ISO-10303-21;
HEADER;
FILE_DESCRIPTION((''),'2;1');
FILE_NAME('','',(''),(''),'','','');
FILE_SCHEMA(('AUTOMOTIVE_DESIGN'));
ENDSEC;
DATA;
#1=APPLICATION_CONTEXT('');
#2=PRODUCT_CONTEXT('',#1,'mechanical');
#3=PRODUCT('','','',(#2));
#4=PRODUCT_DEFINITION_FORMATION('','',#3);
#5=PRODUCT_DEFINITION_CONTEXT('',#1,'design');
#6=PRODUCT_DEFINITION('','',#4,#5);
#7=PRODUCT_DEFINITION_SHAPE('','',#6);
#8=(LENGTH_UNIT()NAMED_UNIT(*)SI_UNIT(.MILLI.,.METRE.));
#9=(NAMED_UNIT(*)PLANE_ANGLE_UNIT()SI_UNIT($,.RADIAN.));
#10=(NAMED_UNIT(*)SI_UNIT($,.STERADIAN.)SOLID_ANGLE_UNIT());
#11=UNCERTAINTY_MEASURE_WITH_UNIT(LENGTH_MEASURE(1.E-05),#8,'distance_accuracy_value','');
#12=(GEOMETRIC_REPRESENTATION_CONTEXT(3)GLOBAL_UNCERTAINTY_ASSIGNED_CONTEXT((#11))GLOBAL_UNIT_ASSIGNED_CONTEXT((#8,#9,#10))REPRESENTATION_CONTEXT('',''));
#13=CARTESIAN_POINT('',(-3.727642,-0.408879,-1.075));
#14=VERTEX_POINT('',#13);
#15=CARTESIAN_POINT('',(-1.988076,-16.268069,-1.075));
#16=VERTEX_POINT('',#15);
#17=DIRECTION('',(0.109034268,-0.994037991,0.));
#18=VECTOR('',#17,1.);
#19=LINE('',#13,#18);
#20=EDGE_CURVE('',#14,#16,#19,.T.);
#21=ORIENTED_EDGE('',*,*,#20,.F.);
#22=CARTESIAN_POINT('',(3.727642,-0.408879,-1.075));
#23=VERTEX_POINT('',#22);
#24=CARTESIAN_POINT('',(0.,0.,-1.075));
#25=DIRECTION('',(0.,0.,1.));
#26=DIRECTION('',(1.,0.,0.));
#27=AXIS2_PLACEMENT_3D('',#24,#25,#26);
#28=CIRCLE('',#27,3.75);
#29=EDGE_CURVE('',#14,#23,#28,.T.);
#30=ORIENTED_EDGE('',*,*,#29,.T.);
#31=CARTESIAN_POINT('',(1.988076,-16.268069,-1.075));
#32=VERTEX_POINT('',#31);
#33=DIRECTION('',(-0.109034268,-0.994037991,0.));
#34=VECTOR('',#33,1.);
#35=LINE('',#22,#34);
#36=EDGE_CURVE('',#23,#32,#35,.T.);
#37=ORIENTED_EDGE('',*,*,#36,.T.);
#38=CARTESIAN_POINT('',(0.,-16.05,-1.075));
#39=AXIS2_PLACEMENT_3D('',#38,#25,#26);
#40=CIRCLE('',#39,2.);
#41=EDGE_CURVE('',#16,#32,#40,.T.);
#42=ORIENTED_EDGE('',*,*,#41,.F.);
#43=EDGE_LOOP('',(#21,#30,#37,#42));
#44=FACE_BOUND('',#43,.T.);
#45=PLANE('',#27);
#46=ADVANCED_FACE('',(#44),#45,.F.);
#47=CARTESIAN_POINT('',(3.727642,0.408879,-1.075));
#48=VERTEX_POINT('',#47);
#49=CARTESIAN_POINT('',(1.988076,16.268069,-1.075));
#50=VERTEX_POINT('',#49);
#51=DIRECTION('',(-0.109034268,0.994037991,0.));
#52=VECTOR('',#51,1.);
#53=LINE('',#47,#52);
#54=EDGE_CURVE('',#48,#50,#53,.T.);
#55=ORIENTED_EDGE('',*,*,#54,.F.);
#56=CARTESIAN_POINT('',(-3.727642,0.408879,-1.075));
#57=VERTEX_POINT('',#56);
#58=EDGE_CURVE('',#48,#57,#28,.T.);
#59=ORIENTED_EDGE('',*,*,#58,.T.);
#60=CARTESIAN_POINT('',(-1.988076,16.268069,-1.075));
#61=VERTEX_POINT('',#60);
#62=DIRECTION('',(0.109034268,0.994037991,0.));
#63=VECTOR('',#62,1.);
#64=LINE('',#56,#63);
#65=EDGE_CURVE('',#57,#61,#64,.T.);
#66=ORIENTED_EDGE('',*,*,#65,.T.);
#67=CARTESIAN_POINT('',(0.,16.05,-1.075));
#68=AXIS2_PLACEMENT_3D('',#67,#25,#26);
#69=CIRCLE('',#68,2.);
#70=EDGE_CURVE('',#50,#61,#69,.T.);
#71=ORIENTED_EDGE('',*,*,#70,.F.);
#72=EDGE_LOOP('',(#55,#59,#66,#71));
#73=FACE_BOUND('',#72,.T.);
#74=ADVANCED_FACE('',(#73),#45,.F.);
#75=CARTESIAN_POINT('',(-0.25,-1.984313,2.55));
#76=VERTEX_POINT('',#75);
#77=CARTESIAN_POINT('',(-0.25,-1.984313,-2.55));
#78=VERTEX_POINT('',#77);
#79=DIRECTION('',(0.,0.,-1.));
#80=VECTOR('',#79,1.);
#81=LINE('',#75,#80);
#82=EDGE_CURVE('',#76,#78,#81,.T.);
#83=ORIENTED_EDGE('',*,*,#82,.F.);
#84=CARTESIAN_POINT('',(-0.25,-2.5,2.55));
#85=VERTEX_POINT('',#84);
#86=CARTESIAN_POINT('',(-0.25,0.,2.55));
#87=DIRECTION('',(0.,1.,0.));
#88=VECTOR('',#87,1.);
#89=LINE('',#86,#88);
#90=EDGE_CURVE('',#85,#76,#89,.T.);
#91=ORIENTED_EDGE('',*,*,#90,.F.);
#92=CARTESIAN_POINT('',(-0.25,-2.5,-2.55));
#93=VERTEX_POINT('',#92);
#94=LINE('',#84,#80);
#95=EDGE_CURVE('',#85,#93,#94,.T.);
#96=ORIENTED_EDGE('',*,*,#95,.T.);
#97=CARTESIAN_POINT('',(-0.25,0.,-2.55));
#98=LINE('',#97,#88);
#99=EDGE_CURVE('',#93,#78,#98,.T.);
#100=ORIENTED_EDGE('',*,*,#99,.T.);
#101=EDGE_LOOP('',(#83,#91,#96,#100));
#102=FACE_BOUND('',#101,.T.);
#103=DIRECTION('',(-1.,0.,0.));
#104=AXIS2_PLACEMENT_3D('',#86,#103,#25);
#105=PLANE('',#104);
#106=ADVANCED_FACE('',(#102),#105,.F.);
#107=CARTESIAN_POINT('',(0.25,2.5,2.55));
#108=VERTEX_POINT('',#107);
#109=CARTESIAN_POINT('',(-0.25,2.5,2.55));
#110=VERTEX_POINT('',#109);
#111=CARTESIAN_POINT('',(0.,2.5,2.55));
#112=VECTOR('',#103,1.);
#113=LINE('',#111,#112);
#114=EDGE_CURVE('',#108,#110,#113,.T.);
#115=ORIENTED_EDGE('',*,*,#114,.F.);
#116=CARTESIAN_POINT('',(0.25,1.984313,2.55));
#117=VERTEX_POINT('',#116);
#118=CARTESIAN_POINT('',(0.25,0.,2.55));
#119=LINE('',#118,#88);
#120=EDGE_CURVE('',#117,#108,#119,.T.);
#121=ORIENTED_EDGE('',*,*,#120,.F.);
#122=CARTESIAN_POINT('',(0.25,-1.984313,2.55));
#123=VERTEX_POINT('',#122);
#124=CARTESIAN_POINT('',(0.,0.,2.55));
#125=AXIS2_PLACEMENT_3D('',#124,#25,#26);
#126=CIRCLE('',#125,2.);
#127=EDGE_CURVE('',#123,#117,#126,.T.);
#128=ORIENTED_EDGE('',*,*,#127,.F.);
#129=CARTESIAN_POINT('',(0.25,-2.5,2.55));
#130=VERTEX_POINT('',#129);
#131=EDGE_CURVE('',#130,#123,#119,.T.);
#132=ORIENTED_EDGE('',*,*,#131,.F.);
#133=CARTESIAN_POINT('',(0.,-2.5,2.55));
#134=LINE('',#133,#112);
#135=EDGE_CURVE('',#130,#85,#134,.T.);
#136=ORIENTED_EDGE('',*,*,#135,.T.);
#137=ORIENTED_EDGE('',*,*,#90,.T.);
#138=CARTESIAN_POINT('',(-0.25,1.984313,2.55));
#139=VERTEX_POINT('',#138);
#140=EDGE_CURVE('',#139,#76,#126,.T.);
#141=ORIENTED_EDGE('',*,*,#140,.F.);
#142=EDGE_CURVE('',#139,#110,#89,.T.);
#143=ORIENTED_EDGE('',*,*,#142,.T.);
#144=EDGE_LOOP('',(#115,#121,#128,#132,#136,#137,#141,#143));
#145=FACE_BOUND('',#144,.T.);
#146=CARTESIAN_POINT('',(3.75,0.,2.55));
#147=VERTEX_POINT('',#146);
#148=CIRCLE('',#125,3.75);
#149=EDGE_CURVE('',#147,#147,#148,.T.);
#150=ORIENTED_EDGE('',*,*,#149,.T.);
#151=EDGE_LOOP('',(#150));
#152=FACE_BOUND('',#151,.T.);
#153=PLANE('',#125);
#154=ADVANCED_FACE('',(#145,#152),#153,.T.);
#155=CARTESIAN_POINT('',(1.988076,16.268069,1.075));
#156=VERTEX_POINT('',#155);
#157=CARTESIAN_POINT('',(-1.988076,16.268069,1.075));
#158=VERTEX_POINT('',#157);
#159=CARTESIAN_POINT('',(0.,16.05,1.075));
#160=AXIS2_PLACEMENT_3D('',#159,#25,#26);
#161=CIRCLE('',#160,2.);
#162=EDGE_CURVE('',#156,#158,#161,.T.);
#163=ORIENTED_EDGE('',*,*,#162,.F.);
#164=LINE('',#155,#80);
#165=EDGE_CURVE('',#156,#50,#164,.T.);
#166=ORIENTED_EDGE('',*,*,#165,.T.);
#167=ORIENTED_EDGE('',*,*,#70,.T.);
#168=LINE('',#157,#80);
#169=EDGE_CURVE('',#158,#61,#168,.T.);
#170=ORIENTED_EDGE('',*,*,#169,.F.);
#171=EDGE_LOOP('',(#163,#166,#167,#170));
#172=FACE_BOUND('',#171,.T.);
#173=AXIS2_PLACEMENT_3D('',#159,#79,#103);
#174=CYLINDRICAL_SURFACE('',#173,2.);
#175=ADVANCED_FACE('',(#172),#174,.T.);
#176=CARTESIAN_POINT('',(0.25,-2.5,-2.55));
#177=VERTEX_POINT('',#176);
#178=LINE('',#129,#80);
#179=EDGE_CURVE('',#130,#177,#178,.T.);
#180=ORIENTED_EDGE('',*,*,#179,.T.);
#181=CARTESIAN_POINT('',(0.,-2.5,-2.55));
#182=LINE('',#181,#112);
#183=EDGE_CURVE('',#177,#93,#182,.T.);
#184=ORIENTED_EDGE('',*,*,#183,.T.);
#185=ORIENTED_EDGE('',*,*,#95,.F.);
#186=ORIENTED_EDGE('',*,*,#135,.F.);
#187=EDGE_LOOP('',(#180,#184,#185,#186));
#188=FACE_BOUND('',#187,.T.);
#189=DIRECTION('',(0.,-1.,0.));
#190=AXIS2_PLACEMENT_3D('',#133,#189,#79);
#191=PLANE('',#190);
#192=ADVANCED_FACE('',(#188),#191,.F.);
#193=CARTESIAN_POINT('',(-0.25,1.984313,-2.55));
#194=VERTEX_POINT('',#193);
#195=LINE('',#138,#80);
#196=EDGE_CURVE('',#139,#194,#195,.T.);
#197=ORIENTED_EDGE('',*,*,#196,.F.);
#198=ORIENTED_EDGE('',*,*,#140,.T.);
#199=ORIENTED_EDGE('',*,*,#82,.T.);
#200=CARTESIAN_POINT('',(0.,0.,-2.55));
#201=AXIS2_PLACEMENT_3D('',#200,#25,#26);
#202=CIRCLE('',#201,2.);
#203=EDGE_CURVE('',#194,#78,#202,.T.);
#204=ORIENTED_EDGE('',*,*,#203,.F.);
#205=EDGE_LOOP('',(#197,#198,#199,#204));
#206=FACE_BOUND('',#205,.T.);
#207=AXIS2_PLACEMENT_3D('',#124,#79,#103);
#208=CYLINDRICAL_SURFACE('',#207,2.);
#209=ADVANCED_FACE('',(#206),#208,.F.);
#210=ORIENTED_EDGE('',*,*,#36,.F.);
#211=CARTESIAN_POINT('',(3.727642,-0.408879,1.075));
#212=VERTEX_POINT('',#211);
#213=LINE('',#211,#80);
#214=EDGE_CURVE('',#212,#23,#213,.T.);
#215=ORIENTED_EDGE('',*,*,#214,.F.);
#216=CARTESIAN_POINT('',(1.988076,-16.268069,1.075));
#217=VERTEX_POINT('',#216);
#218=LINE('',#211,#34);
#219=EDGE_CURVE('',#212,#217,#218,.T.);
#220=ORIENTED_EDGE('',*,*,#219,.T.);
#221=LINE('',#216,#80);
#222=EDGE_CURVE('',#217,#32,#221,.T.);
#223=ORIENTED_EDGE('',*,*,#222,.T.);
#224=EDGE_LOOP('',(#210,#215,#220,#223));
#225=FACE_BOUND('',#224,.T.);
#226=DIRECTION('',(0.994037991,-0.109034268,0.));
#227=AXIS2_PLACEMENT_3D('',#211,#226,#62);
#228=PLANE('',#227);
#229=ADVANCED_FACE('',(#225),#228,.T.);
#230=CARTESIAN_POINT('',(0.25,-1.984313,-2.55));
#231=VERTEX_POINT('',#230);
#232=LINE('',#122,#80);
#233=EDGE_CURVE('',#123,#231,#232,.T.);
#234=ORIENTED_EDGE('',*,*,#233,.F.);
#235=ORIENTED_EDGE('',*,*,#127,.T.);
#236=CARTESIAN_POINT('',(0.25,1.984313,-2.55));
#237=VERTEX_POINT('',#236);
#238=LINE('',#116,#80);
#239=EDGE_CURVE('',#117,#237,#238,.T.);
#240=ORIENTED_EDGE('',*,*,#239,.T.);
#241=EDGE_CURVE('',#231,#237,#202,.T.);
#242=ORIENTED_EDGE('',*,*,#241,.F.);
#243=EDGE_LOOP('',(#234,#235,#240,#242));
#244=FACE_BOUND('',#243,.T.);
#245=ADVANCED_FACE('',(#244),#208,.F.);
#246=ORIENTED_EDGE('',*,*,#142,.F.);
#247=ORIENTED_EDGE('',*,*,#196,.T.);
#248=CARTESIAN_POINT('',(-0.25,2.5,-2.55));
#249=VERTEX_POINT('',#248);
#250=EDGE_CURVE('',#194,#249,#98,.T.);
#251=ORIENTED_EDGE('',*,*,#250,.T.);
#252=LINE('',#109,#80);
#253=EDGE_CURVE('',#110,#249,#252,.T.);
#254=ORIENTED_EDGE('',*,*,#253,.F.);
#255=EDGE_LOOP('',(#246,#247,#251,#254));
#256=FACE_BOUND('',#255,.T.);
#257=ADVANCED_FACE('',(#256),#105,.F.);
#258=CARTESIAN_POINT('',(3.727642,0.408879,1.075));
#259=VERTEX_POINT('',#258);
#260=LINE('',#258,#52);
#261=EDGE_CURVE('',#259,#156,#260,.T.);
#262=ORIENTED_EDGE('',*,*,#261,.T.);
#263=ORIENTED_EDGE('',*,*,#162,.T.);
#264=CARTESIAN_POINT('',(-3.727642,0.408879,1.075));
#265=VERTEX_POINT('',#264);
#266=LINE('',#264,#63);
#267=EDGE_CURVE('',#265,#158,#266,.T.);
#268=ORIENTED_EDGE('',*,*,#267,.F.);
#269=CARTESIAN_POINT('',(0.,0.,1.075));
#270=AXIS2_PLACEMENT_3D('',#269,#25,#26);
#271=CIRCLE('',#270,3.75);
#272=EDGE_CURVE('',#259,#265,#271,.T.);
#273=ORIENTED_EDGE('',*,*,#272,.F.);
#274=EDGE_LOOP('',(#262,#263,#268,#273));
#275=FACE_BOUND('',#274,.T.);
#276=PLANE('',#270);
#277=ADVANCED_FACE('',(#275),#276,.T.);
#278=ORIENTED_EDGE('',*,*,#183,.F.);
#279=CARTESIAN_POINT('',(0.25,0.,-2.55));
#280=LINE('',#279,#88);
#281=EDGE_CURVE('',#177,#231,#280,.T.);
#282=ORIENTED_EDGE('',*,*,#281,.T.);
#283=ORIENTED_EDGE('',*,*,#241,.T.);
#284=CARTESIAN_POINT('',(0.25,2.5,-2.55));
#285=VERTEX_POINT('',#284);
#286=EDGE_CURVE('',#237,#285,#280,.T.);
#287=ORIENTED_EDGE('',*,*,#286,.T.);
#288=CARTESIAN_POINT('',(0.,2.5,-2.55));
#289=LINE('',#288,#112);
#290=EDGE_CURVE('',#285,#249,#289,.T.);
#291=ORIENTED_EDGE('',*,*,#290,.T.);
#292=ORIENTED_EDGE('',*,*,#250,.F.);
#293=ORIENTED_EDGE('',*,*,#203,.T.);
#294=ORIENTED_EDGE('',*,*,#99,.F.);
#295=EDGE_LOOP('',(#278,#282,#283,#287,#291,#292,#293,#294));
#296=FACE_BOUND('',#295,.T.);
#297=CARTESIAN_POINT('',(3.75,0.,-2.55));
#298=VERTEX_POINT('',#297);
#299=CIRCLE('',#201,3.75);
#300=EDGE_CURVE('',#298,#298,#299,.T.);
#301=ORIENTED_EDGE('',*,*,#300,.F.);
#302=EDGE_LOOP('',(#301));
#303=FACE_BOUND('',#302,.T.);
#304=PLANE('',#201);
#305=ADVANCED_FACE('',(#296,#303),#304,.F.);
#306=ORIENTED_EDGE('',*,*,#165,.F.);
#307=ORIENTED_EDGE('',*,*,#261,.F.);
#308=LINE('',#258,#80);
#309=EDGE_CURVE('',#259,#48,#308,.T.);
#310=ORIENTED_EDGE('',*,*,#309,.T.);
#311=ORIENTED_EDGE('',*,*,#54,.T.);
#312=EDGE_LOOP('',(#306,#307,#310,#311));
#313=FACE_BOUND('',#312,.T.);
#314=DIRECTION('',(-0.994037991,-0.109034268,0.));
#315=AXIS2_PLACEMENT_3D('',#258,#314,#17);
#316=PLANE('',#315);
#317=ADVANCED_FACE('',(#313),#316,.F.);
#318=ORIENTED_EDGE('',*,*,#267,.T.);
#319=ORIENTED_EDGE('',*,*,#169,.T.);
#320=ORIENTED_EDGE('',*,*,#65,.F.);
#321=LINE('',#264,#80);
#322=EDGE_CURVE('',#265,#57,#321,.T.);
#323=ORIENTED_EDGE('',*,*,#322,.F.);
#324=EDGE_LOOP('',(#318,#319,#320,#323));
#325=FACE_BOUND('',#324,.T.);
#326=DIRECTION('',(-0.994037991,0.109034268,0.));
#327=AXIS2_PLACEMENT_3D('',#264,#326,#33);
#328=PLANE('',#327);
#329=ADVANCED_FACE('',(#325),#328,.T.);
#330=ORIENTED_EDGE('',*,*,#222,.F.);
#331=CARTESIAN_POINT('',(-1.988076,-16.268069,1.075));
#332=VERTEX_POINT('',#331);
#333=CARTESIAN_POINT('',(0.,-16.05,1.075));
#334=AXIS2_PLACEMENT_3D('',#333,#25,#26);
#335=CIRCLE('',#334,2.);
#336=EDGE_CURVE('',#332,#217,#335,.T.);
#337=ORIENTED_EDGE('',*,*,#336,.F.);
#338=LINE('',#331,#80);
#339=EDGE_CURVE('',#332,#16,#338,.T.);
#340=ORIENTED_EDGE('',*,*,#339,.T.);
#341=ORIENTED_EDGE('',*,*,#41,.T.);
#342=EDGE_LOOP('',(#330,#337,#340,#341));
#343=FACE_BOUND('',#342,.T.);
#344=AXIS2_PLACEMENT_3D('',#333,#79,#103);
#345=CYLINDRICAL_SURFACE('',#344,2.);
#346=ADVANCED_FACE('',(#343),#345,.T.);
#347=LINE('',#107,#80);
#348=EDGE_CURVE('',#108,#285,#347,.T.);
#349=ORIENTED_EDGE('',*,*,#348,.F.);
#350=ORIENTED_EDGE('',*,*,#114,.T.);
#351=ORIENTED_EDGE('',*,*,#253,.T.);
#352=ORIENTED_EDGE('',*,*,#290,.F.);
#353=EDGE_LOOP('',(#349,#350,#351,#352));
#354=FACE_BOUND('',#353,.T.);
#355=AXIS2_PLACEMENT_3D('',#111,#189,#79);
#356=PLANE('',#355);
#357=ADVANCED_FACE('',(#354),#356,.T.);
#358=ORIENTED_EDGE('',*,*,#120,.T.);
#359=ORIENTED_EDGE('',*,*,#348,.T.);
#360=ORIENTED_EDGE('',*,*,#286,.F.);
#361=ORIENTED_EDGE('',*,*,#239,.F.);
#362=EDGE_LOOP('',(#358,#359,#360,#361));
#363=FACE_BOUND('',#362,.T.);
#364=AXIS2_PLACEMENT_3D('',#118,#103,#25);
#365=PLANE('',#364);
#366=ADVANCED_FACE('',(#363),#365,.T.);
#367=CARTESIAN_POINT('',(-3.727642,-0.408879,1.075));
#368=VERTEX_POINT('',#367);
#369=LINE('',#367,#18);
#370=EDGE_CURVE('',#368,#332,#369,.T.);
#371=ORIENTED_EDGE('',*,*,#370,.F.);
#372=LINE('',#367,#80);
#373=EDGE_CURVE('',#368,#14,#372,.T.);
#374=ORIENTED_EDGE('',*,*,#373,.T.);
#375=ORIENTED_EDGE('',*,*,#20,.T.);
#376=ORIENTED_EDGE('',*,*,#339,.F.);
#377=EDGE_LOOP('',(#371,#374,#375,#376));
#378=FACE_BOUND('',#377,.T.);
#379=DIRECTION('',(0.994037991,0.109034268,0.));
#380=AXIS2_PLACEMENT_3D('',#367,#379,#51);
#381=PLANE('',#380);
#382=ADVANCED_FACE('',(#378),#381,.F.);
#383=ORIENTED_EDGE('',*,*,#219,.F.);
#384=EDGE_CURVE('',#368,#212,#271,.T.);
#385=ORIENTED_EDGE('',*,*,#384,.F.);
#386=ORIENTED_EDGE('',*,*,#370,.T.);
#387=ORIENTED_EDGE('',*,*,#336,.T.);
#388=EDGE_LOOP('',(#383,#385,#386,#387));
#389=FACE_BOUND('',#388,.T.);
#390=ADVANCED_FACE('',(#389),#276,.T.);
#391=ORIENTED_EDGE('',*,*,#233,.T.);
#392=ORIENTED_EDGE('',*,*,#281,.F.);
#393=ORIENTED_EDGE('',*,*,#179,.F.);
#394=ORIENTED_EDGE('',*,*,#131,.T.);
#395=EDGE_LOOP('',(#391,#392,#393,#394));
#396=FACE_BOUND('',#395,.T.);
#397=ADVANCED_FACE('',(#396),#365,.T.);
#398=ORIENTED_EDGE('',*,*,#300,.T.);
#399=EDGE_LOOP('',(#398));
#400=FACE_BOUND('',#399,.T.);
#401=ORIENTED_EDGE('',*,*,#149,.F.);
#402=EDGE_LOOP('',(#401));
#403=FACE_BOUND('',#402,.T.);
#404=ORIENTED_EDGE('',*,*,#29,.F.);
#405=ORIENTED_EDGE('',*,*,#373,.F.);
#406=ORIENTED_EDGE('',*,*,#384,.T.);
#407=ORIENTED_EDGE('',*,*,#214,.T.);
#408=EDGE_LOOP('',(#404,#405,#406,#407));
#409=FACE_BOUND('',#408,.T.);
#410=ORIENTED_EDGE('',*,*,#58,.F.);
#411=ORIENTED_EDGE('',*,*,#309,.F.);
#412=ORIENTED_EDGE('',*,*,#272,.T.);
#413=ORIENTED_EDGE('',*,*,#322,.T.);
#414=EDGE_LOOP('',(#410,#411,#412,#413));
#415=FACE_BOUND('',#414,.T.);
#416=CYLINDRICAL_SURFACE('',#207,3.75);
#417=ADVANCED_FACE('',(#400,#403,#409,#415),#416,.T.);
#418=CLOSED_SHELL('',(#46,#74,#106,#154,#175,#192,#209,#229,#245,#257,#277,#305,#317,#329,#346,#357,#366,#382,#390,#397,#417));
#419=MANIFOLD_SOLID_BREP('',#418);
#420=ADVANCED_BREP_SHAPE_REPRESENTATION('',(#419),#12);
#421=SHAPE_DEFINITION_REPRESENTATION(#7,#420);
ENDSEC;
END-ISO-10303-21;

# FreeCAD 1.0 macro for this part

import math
import FreeCAD as App
import Part
import Sketcher

doc = App.newDocument("Part")
body = doc.addObject("PartDesign::Body", "Body")

sketch1 = body.newObject("Sketcher::SketchObject", "Sketch")
sketch1.AttachmentSupport = (doc.getObject("XY_Plane"), [""])
sketch1.MapMode = "FlatFace"
sketch1.addGeometry([
    Part.ArcOfCircle(Part.Circle(App.Vector(0, 0, 0), App.Vector(0, 0, 1), 3.75), math.radians(6), math.radians(174)),
    Part.ArcOfCircle(Part.Circle(App.Vector(0, 0, 0), App.Vector(0, 0, 1), 3.75), math.radians(173.74), math.radians(186.26)),
    Part.ArcOfCircle(Part.Circle(App.Vector(0, 0, 0), App.Vector(0, 0, 1), 3.75), math.radians(-174), math.radians(-6)),
    Part.ArcOfCircle(Part.Circle(App.Vector(0, 0, 0), App.Vector(0, 0, 1), 3.75), math.radians(-6.26), math.radians(0)),
    Part.ArcOfCircle(Part.Circle(App.Vector(0, 0, 0), App.Vector(0, 0, 1), 3.75), math.radians(0), math.radians(6.26)),
    Part.ArcOfCircle(Part.Circle(App.Vector(0, 0, 0), App.Vector(0, 0, 1), 2), math.radians(-83), math.radians(0)),
    Part.LineSegment(App.Vector(0.25, -1.98, 0), App.Vector(0.25, -2.5, 0)),
    Part.LineSegment(App.Vector(0.25, -2.5, 0), App.Vector(-0.25, -2.5, 0)),
    Part.LineSegment(App.Vector(-0.25, -2.5, 0), App.Vector(-0.25, -1.98, 0)),
    Part.ArcOfCircle(Part.Circle(App.Vector(0, 0, 0), App.Vector(0, 0, 1), 2), math.radians(97), math.radians(263)),
    Part.LineSegment(App.Vector(-0.25, 1.98, 0), App.Vector(-0.25, 2.5, 0)),
    Part.LineSegment(App.Vector(-0.25, 2.5, 0), App.Vector(0.25, 2.5, 0)),
    Part.LineSegment(App.Vector(0.25, 2.5, 0), App.Vector(0.25, 1.98, 0)),
    Part.ArcOfCircle(Part.Circle(App.Vector(0, 0, 0), App.Vector(0, 0, 1), 2), math.radians(0), math.radians(83)),
], False)
sketch1.addConstraint([
    Sketcher.Constraint("Tangent", 0, 2, 1, 1),
    Sketcher.Constraint("Tangent", 1, 2, 2, 1),
    Sketcher.Constraint("Tangent", 2, 2, 3, 1),
    Sketcher.Constraint("Tangent", 3, 2, 4, 1),
    Sketcher.Constraint("Tangent", 4, 2, 0, 1),
    Sketcher.Constraint("Coincident", 5, 1, 6, 1),
    Sketcher.Constraint("Coincident", 6, 2, 7, 1),
    Sketcher.Constraint("Coincident", 7, 2, 8, 1),
    Sketcher.Constraint("Coincident", 8, 2, 9, 2),
    Sketcher.Constraint("Coincident", 9, 1, 10, 1),
    Sketcher.Constraint("Coincident", 10, 2, 11, 1),
    Sketcher.Constraint("Coincident", 11, 2, 12, 1),
    Sketcher.Constraint("Coincident", 12, 2, 13, 2),
    Sketcher.Constraint("Tangent", 13, 1, 5, 2),
    Sketcher.Constraint("Vertical", 6),
    Sketcher.Constraint("Horizontal", 7),
    Sketcher.Constraint("Vertical", 8),
    Sketcher.Constraint("Vertical", 10),
    Sketcher.Constraint("Horizontal", 11),
    Sketcher.Constraint("Vertical", 12),
    Sketcher.Constraint("Coincident", 0, 3, -1, 1),
    Sketcher.Constraint("Coincident", 2, 3, -1, 1),
    Sketcher.Constraint("Coincident", 5, 3, -1, 1),
    Sketcher.Constraint("Coincident", 9, 3, -1, 1),
    Sketcher.Constraint("Equal", 5, 9),
    Sketcher.Constraint("Equal", 9, 13),
    Sketcher.Constraint("Symmetric", 6, 2, 10, 2, -1, 1),
    Sketcher.Constraint("PointOnObject", 3, 2, -1),
    Sketcher.Constraint("PointOnObject", 13, 1, -1),
    Sketcher.Constraint("Horizontal", 1, 2, 2, 2),
    Sketcher.Constraint("Horizontal", 0, 2, 4, 2),
    Sketcher.Constraint("Horizontal", 5, 1, 8, 2),
    Sketcher.Constraint("Horizontal", 9, 1, 12, 2),
    Sketcher.Constraint("Vertical", 0, 2, 1, 2),
    Sketcher.Constraint("Radius", 5, 2.0),
    Sketcher.Constraint("Radius", 0, 3.75),
    Sketcher.Constraint("DistanceX", 7, 2, 7, 1, 0.5),
    Sketcher.Constraint("DistanceY", 6, 2, -1, 1, 2.5),
    Sketcher.Constraint("DistanceY", -1, 1, 0, 2, 0.408879),
])
pad1 = body.newObject("PartDesign::Pad", "Pad")
pad1.Profile = sketch1
pad1.Length = 5.1
pad1.Midplane = True

sketch2 = body.newObject("Sketcher::SketchObject", "Sketch001")
sketch2.AttachmentSupport = (doc.getObject("XY_Plane"), [""])
sketch2.MapMode = "FlatFace"
sketch2.addGeometry([
    Part.LineSegment(App.Vector(-2, 16.3, 0), App.Vector(-3.7, 0.4, 0)),
    Part.ArcOfCircle(Part.Circle(App.Vector(0, 0, 0), App.Vector(0, 0, 1), 3.8), math.radians(6), math.radians(174)),
    Part.LineSegment(App.Vector(3.7, 0.4, 0), App.Vector(2, 16.3, 0)),
    Part.ArcOfCircle(Part.Circle(App.Vector(0, 16.1, 0), App.Vector(0, 0, 1), 2), math.radians(6), math.radians(174)),
    Part.ArcOfCircle(Part.Circle(App.Vector(0, 0, 0), App.Vector(0, 0, 1), 3.8), math.radians(-174), math.radians(-6)),
    Part.LineSegment(App.Vector(-3.7, -0.4, 0), App.Vector(-2, -16.3, 0)),
    Part.ArcOfCircle(Part.Circle(App.Vector(0, -16.1, 0), App.Vector(0, 0, 1), 2), math.radians(-174), math.radians(-6)),
    Part.LineSegment(App.Vector(2, -16.3, 0), App.Vector(3.7, -0.4, 0)),
], False)
sketch2.addConstraint([
    Sketcher.Constraint("Tangent", 0, 2, 1, 2),
    Sketcher.Constraint("Tangent", 1, 1, 2, 1),
    Sketcher.Constraint("Tangent", 2, 2, 3, 1),
    Sketcher.Constraint("Tangent", 3, 2, 0, 1),
    Sketcher.Constraint("Tangent", 4, 1, 5, 1),
    Sketcher.Constraint("Tangent", 5, 2, 6, 1),
    Sketcher.Constraint("Tangent", 6, 2, 7, 1),
    Sketcher.Constraint("Tangent", 7, 2, 4, 2),
    Sketcher.Constraint("Coincident", 1, 3, -1, 1),
    Sketcher.Constraint("Coincident", 4, 3, -1, 1),
    Sketcher.Constraint("Equal", 1, 4),
    Sketcher.Constraint("Equal", 3, 6),
    Sketcher.Constraint("Symmetric", 3, 3, 6, 3, -1, 1),
    Sketcher.Constraint("PointOnObject", 3, 3, -2),
    Sketcher.Constraint("Radius", 3, 2.0),
    Sketcher.Constraint("Radius", 1, 3.75),
    Sketcher.Constraint("DistanceY", 6, 3, 3, 3, 32.1),
])
pad2 = body.newObject("PartDesign::Pad", "Pad001")
pad2.Profile = sketch2
pad2.Length = 2.15
pad2.Midplane = True

doc.recompute()
